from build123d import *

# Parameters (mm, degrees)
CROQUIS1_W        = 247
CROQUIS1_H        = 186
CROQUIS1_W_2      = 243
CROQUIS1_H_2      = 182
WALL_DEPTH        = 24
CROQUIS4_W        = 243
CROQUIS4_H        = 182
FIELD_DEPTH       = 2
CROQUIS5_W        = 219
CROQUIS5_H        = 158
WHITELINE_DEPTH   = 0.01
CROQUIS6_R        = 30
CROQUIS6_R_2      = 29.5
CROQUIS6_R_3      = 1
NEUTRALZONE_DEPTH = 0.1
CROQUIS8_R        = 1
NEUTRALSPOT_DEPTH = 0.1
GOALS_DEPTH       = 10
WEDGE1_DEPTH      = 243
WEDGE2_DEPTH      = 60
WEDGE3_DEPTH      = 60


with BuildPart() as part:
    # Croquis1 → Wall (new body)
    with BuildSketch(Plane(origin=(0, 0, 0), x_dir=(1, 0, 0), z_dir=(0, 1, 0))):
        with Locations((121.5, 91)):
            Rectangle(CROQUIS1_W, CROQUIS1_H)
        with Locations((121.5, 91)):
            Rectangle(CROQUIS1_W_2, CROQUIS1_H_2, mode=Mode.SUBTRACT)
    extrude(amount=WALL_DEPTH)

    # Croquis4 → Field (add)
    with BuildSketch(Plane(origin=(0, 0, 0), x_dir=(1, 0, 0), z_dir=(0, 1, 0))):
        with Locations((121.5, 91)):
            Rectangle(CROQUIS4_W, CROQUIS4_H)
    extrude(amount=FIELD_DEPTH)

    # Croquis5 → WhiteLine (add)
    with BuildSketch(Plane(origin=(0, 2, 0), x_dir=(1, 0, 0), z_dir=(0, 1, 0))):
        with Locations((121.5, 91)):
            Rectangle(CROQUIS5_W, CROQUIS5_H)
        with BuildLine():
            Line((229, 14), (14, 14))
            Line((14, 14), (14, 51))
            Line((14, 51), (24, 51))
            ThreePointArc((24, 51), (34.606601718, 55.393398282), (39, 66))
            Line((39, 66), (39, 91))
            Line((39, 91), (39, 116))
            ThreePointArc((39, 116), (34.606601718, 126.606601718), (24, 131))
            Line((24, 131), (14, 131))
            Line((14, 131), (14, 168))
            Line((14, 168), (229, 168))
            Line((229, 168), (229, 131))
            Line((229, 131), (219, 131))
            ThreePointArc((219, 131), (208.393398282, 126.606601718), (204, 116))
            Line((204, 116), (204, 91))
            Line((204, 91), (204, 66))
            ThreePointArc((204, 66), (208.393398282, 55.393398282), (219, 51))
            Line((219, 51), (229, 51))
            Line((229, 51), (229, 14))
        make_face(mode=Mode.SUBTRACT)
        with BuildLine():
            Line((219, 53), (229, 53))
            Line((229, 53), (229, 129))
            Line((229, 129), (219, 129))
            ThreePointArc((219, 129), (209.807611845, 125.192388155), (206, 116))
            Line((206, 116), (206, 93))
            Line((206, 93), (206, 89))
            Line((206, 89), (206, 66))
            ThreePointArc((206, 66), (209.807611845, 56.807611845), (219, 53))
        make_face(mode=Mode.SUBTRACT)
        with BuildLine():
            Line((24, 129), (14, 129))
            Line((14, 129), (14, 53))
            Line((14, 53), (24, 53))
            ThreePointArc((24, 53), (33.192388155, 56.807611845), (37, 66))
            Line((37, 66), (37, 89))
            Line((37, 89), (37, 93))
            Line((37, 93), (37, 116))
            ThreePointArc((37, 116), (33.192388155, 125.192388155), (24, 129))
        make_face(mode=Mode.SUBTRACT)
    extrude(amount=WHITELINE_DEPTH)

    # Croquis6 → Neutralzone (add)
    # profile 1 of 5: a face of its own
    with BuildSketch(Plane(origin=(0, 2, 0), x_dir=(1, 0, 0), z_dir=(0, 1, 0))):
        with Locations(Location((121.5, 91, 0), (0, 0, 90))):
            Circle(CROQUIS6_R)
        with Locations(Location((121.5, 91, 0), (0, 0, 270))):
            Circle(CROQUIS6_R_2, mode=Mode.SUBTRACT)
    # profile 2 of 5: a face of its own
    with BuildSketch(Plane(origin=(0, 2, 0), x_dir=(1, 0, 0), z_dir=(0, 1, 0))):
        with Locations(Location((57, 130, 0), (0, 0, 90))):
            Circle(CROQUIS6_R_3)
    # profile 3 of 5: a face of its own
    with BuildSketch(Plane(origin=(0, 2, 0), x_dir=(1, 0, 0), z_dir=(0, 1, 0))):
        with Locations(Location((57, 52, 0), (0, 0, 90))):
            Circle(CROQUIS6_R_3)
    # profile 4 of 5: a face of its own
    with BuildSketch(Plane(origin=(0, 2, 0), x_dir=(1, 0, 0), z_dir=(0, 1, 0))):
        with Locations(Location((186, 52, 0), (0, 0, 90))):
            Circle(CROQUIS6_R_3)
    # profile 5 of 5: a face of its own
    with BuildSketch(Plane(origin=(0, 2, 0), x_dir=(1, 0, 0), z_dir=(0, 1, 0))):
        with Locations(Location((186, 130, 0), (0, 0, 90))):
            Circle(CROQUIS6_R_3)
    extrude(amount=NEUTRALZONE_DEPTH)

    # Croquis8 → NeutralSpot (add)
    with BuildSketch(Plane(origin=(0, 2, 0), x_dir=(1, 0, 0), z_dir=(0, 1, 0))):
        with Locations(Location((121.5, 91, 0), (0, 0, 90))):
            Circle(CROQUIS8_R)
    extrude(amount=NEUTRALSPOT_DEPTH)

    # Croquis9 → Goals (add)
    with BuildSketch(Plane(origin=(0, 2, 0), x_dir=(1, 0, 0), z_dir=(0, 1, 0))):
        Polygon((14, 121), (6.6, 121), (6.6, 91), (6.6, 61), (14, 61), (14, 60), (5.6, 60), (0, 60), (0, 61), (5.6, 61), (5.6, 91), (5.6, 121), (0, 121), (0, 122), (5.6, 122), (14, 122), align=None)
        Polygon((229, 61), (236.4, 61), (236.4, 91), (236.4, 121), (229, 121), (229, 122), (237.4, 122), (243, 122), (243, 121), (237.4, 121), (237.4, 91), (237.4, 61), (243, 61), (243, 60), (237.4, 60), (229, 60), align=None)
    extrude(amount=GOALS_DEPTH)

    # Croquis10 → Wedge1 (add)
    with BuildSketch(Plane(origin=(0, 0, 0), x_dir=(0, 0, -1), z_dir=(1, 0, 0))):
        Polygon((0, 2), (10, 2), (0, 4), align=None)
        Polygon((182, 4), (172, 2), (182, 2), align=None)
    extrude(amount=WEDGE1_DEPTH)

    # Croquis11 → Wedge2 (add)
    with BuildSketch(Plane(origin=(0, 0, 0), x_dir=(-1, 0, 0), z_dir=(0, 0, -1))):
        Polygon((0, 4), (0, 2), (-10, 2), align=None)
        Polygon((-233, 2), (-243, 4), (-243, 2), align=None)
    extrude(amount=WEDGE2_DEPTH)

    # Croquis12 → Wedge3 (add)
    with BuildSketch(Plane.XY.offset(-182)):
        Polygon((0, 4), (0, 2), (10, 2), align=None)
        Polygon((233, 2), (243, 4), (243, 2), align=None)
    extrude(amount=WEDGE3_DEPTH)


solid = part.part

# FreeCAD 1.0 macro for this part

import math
import FreeCAD as App
import Part
import Sketcher

V = App.Vector
Q = App.Units.Quantity


def add_polygon(sketch, points):
    """Adds a closed chain of lines whose ends are joined by coincident constraints."""
    first, n = sketch.GeometryCount, len(points)
    for a, b in zip(points, points[1:] + points[:1]):
        sketch.addGeometry(Part.LineSegment(App.Vector(*a, 0), App.Vector(*b, 0)), False)
    for i in range(n):
        sketch.addConstraint(Sketcher.Constraint("Coincident", first + i, 2, first + (i + 1) % n, 1))

doc = App.newDocument("Part")
body = doc.addObject("PartDesign::Body", "Body")

sketch1 = body.newObject("Sketcher::SketchObject", "Sketch")
sketch1.AttachmentSupport = (doc.getObject("XZ_Plane"), [""])
sketch1.MapMode = "FlatFace"
add_polygon(sketch1, [(-2, -184), (-2, 2), (245, 2), (245, -184)])
add_polygon(sketch1, [(243, 0), (0, 0), (0, -182), (243, -182)])
sketch1.addConstraint([
    Sketcher.Constraint("Vertical", 0),
    Sketcher.Constraint("Horizontal", 1),
    Sketcher.Constraint("Vertical", 2),
    Sketcher.Constraint("Horizontal", 3),
    Sketcher.Constraint("Horizontal", 4),
    Sketcher.Constraint("Vertical", 5),
    Sketcher.Constraint("Horizontal", 6),
    Sketcher.Constraint("Vertical", 7),
    Sketcher.Constraint("Coincident", 4, 2, -1, 1),
    Sketcher.Constraint("DistanceX", 1, 1, 1, 2, Q("247 mm")),
    Sketcher.Constraint("DistanceX", 4, 2, 4, 1, Q("243 mm")),
    Sketcher.Constraint("DistanceY", 0, 1, 0, 2, Q("186 mm")),
    Sketcher.Constraint("DistanceY", 5, 2, 5, 1, Q("182 mm")),
    Sketcher.Constraint("DistanceX", 0, 2, -1, 1, Q("2 mm")),
    Sketcher.Constraint("DistanceY", -1, 1, 0, 2, Q("2 mm")),
])
pad1 = body.newObject("PartDesign::Pad", "Pad")
pad1.Profile = sketch1
pad1.Length = 24
pad1.Reversed = True

sketch2 = body.newObject("Sketcher::SketchObject", "Sketch001")
sketch2.AttachmentSupport = (doc.getObject("XZ_Plane"), [""])
sketch2.MapMode = "FlatFace"
add_polygon(sketch2, [(0, -182), (0, 0), (243, 0), (243, -182)])
sketch2.addConstraint([
    Sketcher.Constraint("Vertical", 0),
    Sketcher.Constraint("Horizontal", 1),
    Sketcher.Constraint("Vertical", 2),
    Sketcher.Constraint("Horizontal", 3),
    Sketcher.Constraint("Coincident", 0, 2, -1, 1),
    Sketcher.Constraint("DistanceX", 1, 1, 1, 2, Q("243 mm")),
    Sketcher.Constraint("DistanceY", 0, 1, 0, 2, Q("182 mm")),
])
pad2 = body.newObject("PartDesign::Pad", "Pad001")
pad2.Profile = sketch2
pad2.Length = 2
pad2.Reversed = True

sketch3 = body.newObject("Sketcher::SketchObject", "Sketch002")
sketch3.AttachmentSupport = (doc.getObject("XZ_Plane"), [""])
sketch3.MapMode = "FlatFace"
sketch3.AttachmentOffset = App.Placement(V(0, 0, -2), App.Rotation())
add_polygon(sketch3, [(12, -170), (12, -12), (231, -12), (231, -170)])
sketch3.addGeometry(Part.LineSegment(V(14, -129, 0), V(24, -129, 0)), False)
sketch3.addGeometry(Part.ArcOfCircle(Part.Circle(V(24, -116, 0), V(0, 0, 1), 13), math.radians(-90), math.radians(0)), False)
sketch3.addGeometry(Part.LineSegment(V(37, -116, 0), V(37, -66, 0)), False)
sketch3.addGeometry(Part.ArcOfCircle(Part.Circle(V(24, -66, 0), V(0, 0, 1), 13), math.radians(0), math.radians(90)), False)
sketch3.addGeometry(Part.LineSegment(V(24, -53, 0), V(14, -53, 0)), False)
sketch3.addGeometry(Part.LineSegment(V(14, -53, 0), V(14, -129, 0)), False)
sketch3.addGeometry(Part.LineSegment(V(229, -51, 0), V(229, -14, 0)), False)
sketch3.addGeometry(Part.LineSegment(V(229, -14, 0), V(14, -14, 0)), False)
sketch3.addGeometry(Part.LineSegment(V(14, -14, 0), V(14, -51, 0)), False)
sketch3.addGeometry(Part.LineSegment(V(14, -51, 0), V(24, -51, 0)), False)
sketch3.addGeometry(Part.ArcOfCircle(Part.Circle(V(24, -66, 0), V(0, 0, 1), 15), math.radians(0), math.radians(90)), False)
sketch3.addGeometry(Part.LineSegment(V(39, -66, 0), V(39, -116, 0)), False)
sketch3.addGeometry(Part.ArcOfCircle(Part.Circle(V(24, -116, 0), V(0, 0, 1), 15), math.radians(-90), math.radians(0)), False)
sketch3.addGeometry(Part.LineSegment(V(24, -131, 0), V(14, -131, 0)), False)
sketch3.addGeometry(Part.LineSegment(V(14, -131, 0), V(14, -168, 0)), False)
sketch3.addGeometry(Part.LineSegment(V(14, -168, 0), V(229, -168, 0)), False)
sketch3.addGeometry(Part.LineSegment(V(229, -168, 0), V(229, -131, 0)), False)
sketch3.addGeometry(Part.LineSegment(V(229, -131, 0), V(219, -131, 0)), False)
sketch3.addGeometry(Part.ArcOfCircle(Part.Circle(V(219, -116, 0), V(0, 0, 1), 15), math.radians(180), math.radians(270)), False)
sketch3.addGeometry(Part.LineSegment(V(204, -116, 0), V(204, -66, 0)), False)
sketch3.addGeometry(Part.ArcOfCircle(Part.Circle(V(219, -66, 0), V(0, 0, 1), 15), math.radians(90), math.radians(180)), False)
sketch3.addGeometry(Part.LineSegment(V(219, -51, 0), V(229, -51, 0)), False)
sketch3.addGeometry(Part.LineSegment(V(229, -53, 0), V(219, -53, 0)), False)
sketch3.addGeometry(Part.ArcOfCircle(Part.Circle(V(219, -66, 0), V(0, 0, 1), 13), math.radians(90), math.radians(180)), False)
sketch3.addGeometry(Part.LineSegment(V(206, -66, 0), V(206, -116, 0)), False)
sketch3.addGeometry(Part.ArcOfCircle(Part.Circle(V(219, -116, 0), V(0, 0, 1), 13), math.radians(-180), math.radians(-90)), False)
sketch3.addGeometry(Part.LineSegment(V(219, -129, 0), V(229, -129, 0)), False)
sketch3.addGeometry(Part.LineSegment(V(229, -129, 0), V(229, -53, 0)), False)
sketch3.addConstraint([
    Sketcher.Constraint("Tangent", 4, 2, 5, 1),
    Sketcher.Constraint("Tangent", 5, 2, 6, 1),
    Sketcher.Constraint("Tangent", 6, 2, 7, 1),
    Sketcher.Constraint("Tangent", 7, 2, 8, 1),
    Sketcher.Constraint("Coincident", 8, 2, 9, 1),
    Sketcher.Constraint("Coincident", 9, 2, 4, 1),
    Sketcher.Constraint("Coincident", 10, 2, 11, 1),
    Sketcher.Constraint("Coincident", 11, 2, 12, 1),
    Sketcher.Constraint("Coincident", 12, 2, 13, 1),
    Sketcher.Constraint("Tangent", 13, 2, 14, 2),
    Sketcher.Constraint("Tangent", 14, 1, 15, 1),
    Sketcher.Constraint("Tangent", 15, 2, 16, 2),
    Sketcher.Constraint("Tangent", 16, 1, 17, 1),
    Sketcher.Constraint("Coincident", 17, 2, 18, 1),
    Sketcher.Constraint("Coincident", 18, 2, 19, 1),
    Sketcher.Constraint("Coincident", 19, 2, 20, 1),
    Sketcher.Constraint("Coincident", 20, 2, 21, 1),
    Sketcher.Constraint("Tangent", 21, 2, 22, 2),
    Sketcher.Constraint("Tangent", 22, 1, 23, 1),
    Sketcher.Constraint("Tangent", 23, 2, 24, 2),
    Sketcher.Constraint("Tangent", 24, 1, 25, 1),
    Sketcher.Constraint("Coincident", 25, 2, 10, 1),
    Sketcher.Constraint("Tangent", 26, 2, 27, 1),
    Sketcher.Constraint("Tangent", 27, 2, 28, 1),
    Sketcher.Constraint("Tangent", 28, 2, 29, 1),
    Sketcher.Constraint("Tangent", 29, 2, 30, 1),
    Sketcher.Constraint("Coincident", 30, 2, 31, 1),
    Sketcher.Constraint("Coincident", 31, 2, 26, 1),
    Sketcher.Constraint("Vertical", 0),
    Sketcher.Constraint("Horizontal", 1),
    Sketcher.Constraint("Vertical", 2),
    Sketcher.Constraint("Horizontal", 3),
    Sketcher.Constraint("Horizontal", 4),
    Sketcher.Constraint("Vertical", 6),
    Sketcher.Constraint("Horizontal", 8),
    Sketcher.Constraint("Vertical", 9),
    Sketcher.Constraint("Vertical", 10),
    Sketcher.Constraint("Horizontal", 11),
    Sketcher.Constraint("Vertical", 12),
    Sketcher.Constraint("Horizontal", 13),
    Sketcher.Constraint("Vertical", 15),
    Sketcher.Constraint("Horizontal", 17),
    Sketcher.Constraint("Vertical", 18),
    Sketcher.Constraint("Horizontal", 19),
    Sketcher.Constraint("Vertical", 20),
    Sketcher.Constraint("Horizontal", 21),
    Sketcher.Constraint("Vertical", 23),
    Sketcher.Constraint("Horizontal", 25),
    Sketcher.Constraint("Horizontal", 26),
    Sketcher.Constraint("Vertical", 28),
    Sketcher.Constraint("Horizontal", 30),
    Sketcher.Constraint("Vertical", 31),
    Sketcher.Constraint("Coincident", 14, 3, 7, 3),
    Sketcher.Constraint("Coincident", 16, 3, 5, 3),
    Sketcher.Constraint("Coincident", 27, 3, 24, 3),
    Sketcher.Constraint("Coincident", 29, 3, 22, 3),
    Sketcher.Constraint("Equal", 5, 7),
    Sketcher.Constraint("Equal", 16, 22),
    Sketcher.Constraint("Equal", 22, 24),
    Sketcher.Constraint("Equal", 7, 27),
    Sketcher.Constraint("Horizontal", 16, 3, 22, 3),
    Sketcher.Constraint("Horizontal", 14, 3, 24, 3),
    Sketcher.Constraint("Vertical", 9, 2, 11, 2),
    Sketcher.Constraint("Vertical", 12, 2, 17, 2),
    Sketcher.Constraint("Vertical", 10, 2, 19, 2),
    Sketcher.Constraint("Vertical", 25, 2, 30, 2),
    Sketcher.Constraint("Equal", 17, 21),
    Sketcher.Constraint("Equal", 12, 18),
    Sketcher.Constraint("Radius", 5, Q("13 mm")),
    Sketcher.Constraint("Radius", 14, Q("15 mm")),
    Sketcher.Constraint("DistanceX", 1, 1, 1, 2, Q("219 mm")),
    Sketcher.Constraint("DistanceX", 4, 1, 4, 2, Q("10 mm")),
    Sketcher.Constraint("DistanceX", 11, 2, 11, 1, Q("215 mm")),
    Sketcher.Constraint("DistanceY", 0, 1, 0, 2, Q("158 mm")),
    Sketcher.Constraint("DistanceY", 6, 1, 6, 2, Q("50 mm")),
    Sketcher.Constraint("DistanceY", 10, 1, 10, 2, Q("37 mm")),
    Sketcher.Constraint("DistanceX", -1, 1, 5, 3, Q("24 mm")),
    Sketcher.Constraint("DistanceY", 5, 3, -1, 1, Q("116 mm")),
    Sketcher.Constraint("DistanceX", -1, 1, 0, 2, Q("12 mm")),
    Sketcher.Constraint("DistanceY", 0, 2, -1, 1, Q("12 mm")),
])
pad3 = body.newObject("PartDesign::Pad", "Pad002")
pad3.Profile = sketch3
pad3.Length = 0.01
pad3.Reversed = True

sketch4 = body.newObject("Sketcher::SketchObject", "Sketch003")
sketch4.AttachmentSupport = (doc.getObject("XZ_Plane"), [""])
sketch4.MapMode = "FlatFace"
sketch4.AttachmentOffset = App.Placement(V(0, 0, -2), App.Rotation())
sketch4.addGeometry([
    Part.Circle(V(121.5, -91, 0), V(0, 0, 1), 30),
    Part.Circle(V(121.5, -91, 0), V(0, 0, 1), 29.5),
    Part.Circle(V(57, -130, 0), V(0, 0, 1), 1),
    Part.Circle(V(57, -52, 0), V(0, 0, 1), 1),
    Part.Circle(V(186, -52, 0), V(0, 0, 1), 1),
    Part.Circle(V(186, -130, 0), V(0, 0, 1), 1),
], False)
sketch4.addConstraint([
    Sketcher.Constraint("Coincident", 1, 3, 0, 3),
    Sketcher.Constraint("Equal", 2, 3),
    Sketcher.Constraint("Equal", 3, 4),
    Sketcher.Constraint("Equal", 4, 5),
    Sketcher.Constraint("Horizontal", 3, 3, 4, 3),
    Sketcher.Constraint("Horizontal", 2, 3, 5, 3),
    Sketcher.Constraint("Vertical", 2, 3, 3, 3),
    Sketcher.Constraint("Vertical", 4, 3, 5, 3),
    Sketcher.Constraint("Diameter", 0, Q("60 mm")),
    Sketcher.Constraint("Diameter", 1, Q("59 mm")),
    Sketcher.Constraint("Diameter", 2, Q("2 mm")),
    Sketcher.Constraint("DistanceY", 0, 3, -1, 1, Q("91 mm")),
    Sketcher.Constraint("DistanceX", -1, 1, 2, 3, Q("57 mm")),
    Sketcher.Constraint("DistanceY", 2, 3, -1, 1, Q("130 mm")),
    Sketcher.Constraint("DistanceY", 3, 3, -1, 1, Q("52 mm")),
    Sketcher.Constraint("DistanceX", -1, 1, 4, 3, Q("186 mm")),
    Sketcher.Constraint("DistanceX", -1, 1, 0, 3, Q("121.5 mm")),
])
pad4 = body.newObject("PartDesign::Pad", "Pad003")
pad4.Profile = sketch4
pad4.Length = 0.1
pad4.Reversed = True

sketch5 = body.newObject("Sketcher::SketchObject", "Sketch004")
sketch5.AttachmentSupport = (doc.getObject("XZ_Plane"), [""])
sketch5.MapMode = "FlatFace"
sketch5.AttachmentOffset = App.Placement(V(0, 0, -2), App.Rotation())
sketch5.addGeometry(Part.Circle(V(121.5, -91, 0), V(0, 0, 1), 1), False)
sketch5.addConstraint([
    Sketcher.Constraint("Diameter", 0, Q("2 mm")),
    Sketcher.Constraint("DistanceY", 0, 3, -1, 1, Q("91 mm")),
    Sketcher.Constraint("DistanceX", -1, 1, 0, 3, Q("121.5 mm")),
])
pad5 = body.newObject("PartDesign::Pad", "Pad004")
pad5.Profile = sketch5
pad5.Length = 0.1
pad5.Reversed = True

sketch6 = body.newObject("Sketcher::SketchObject", "Sketch005")
sketch6.AttachmentSupport = (doc.getObject("XZ_Plane"), [""])
sketch6.MapMode = "FlatFace"
sketch6.AttachmentOffset = App.Placement(V(0, 0, -2), App.Rotation())
add_polygon(sketch6, [(6.6, -121), (14, -121), (14, -122), (0, -122), (0, -121), (5.6, -121), (5.6, -61), (0, -61), (0, -60), (14, -60), (14, -61), (6.6, -61)])
add_polygon(sketch6, [(236.4, -61), (229, -61), (229, -60), (243, -60), (243, -61), (237.4, -61), (237.4, -121), (243, -121), (243, -122), (229, -122), (229, -121), (236.4, -121)])
sketch6.addConstraint([
    Sketcher.Constraint("Horizontal", 0),
    Sketcher.Constraint("Vertical", 1),
    Sketcher.Constraint("Horizontal", 2),
    Sketcher.Constraint("Vertical", 3),
    Sketcher.Constraint("Horizontal", 4),
    Sketcher.Constraint("Vertical", 5),
    Sketcher.Constraint("Horizontal", 6),
    Sketcher.Constraint("Vertical", 7),
    Sketcher.Constraint("Horizontal", 8),
    Sketcher.Constraint("Vertical", 9),
    Sketcher.Constraint("Horizontal", 10),
    Sketcher.Constraint("Vertical", 11),
    Sketcher.Constraint("Horizontal", 12),
    Sketcher.Constraint("Vertical", 13),
    Sketcher.Constraint("Horizontal", 14),
    Sketcher.Constraint("Vertical", 15),
    Sketcher.Constraint("Horizontal", 16),
    Sketcher.Constraint("Vertical", 17),
    Sketcher.Constraint("Horizontal", 18),
    Sketcher.Constraint("Vertical", 19),
    Sketcher.Constraint("Horizontal", 20),
    Sketcher.Constraint("Vertical", 21),
    Sketcher.Constraint("Horizontal", 22),
    Sketcher.Constraint("Vertical", 23),
    Sketcher.Constraint("PointOnObject", 2, 2, -2),
    Sketcher.Constraint("PointOnObject", 6, 2, -2),
    Sketcher.Constraint("Horizontal", 0, 2, 3, 2),
    Sketcher.Constraint("Horizontal", 6, 2, 9, 2),
    Sketcher.Constraint("Horizontal", 10, 2, 12, 2),
    Sketcher.Constraint("Horizontal", 8, 2, 13, 2),
    Sketcher.Constraint("Horizontal", 12, 2, 15, 2),
    Sketcher.Constraint("Horizontal", 11, 2, 17, 2),
    Sketcher.Constraint("Horizontal", 2, 2, 19, 2),
    Sketcher.Constraint("Horizontal", 18, 2, 21, 2),
    Sketcher.Constraint("Vertical", 1, 2, 8, 2),
    Sketcher.Constraint("Vertical", 15, 2, 18, 2),
    Sketcher.Constraint("Vertical", 13, 2, 20, 2),
    Sketcher.Constraint("Equal", 10, 12),
    Sketcher.Constraint("Equal", 8, 14),
    Sketcher.Constraint("Equal", 6, 16),
    Sketcher.Constraint("Equal", 3, 7),
    Sketcher.Constraint("DistanceX", 2, 2, 2, 1, Q("14 mm")),
    Sketcher.Constraint("DistanceY", 1, 2, 1, 1, Q("1 mm")),
    Sketcher.Constraint("DistanceY", 5, 1, 5, 2, Q("60 mm")),
    Sketcher.Constraint("DistanceX", 0, 1, 0, 2, Q("7.4 mm")),
    Sketcher.Constraint("DistanceX", 4, 1, 4, 2, Q("5.6 mm")),
    Sketcher.Constraint("DistanceY", 0, 2, -1, 1, Q("121 mm")),
    Sketcher.Constraint("DistanceX", -1, 1, 12, 2, Q("229 mm")),
])
pad6 = body.newObject("PartDesign::Pad", "Pad005")
pad6.Profile = sketch6
pad6.Length = 10
pad6.Reversed = True

sketch7 = body.newObject("Sketcher::SketchObject", "Sketch006")
sketch7.AttachmentSupport = (doc.getObject("YZ_Plane"), [""])
sketch7.MapMode = "FlatFace"
add_polygon(sketch7, [(2, 0), (2, -10), (4, 0)])
add_polygon(sketch7, [(4, -182), (2, -172), (2, -182)])
sketch7.addConstraint([
    Sketcher.Constraint("Vertical", 0),
    Sketcher.Constraint("Horizontal", 2),
    Sketcher.Constraint("Vertical", 4),
    Sketcher.Constraint("Horizontal", 5),
    Sketcher.Constraint("PointOnObject", 1, 2, -1),
    Sketcher.Constraint("Vertical", 2, 2, 3, 2),
    Sketcher.Constraint("Vertical", 1, 2, 5, 2),
    Sketcher.Constraint("Equal", 0, 4),
    Sketcher.Constraint("DistanceX", 2, 2, 2, 1, Q("2 mm")),
    Sketcher.Constraint("DistanceY", 0, 2, 0, 1, Q("10 mm")),
    Sketcher.Constraint("DistanceX", -1, 1, 0, 2, Q("2 mm")),
    Sketcher.Constraint("DistanceY", 3, 2, -1, 1, Q("172 mm")),
])
pad7 = body.newObject("PartDesign::Pad", "Pad006")
pad7.Profile = sketch7
pad7.Length = 243

sketch8 = body.newObject("Sketcher::SketchObject", "Sketch007")
sketch8.AttachmentSupport = (doc.getObject("XY_Plane"), [""])
sketch8.MapMode = "FlatFace"
add_polygon(sketch8, [(0, 2), (0, 4), (10, 2)])
add_polygon(sketch8, [(233, 2), (243, 4), (243, 2)])
sketch8.addConstraint([
    Sketcher.Constraint("Vertical", 0),
    Sketcher.Constraint("Horizontal", 2),
    Sketcher.Constraint("Vertical", 4),
    Sketcher.Constraint("Horizontal", 5),
    Sketcher.Constraint("PointOnObject", 0, 2, -2),
    Sketcher.Constraint("Horizontal", 0, 2, 3, 2),
    Sketcher.Constraint("Horizontal", 2, 2, 4, 2),
    Sketcher.Constraint("Equal", 2, 5),
    Sketcher.Constraint("DistanceX", 2, 2, 2, 1, Q("10 mm")),
    Sketcher.Constraint("DistanceY", 0, 1, 0, 2, Q("2 mm")),
    Sketcher.Constraint("DistanceY", -1, 1, 0, 2, Q("4 mm")),
    Sketcher.Constraint("DistanceX", -1, 1, 3, 2, Q("243 mm")),
])
pad8 = body.newObject("PartDesign::Pad", "Pad007")
pad8.Profile = sketch8
pad8.Length = 60
pad8.Reversed = True

sketch9 = body.newObject("Sketcher::SketchObject", "Sketch008")
sketch9.AttachmentSupport = (doc.getObject("XY_Plane"), [""])
sketch9.MapMode = "FlatFace"
sketch9.AttachmentOffset = App.Placement(V(0, 0, -182), App.Rotation())
add_polygon(sketch9, [(0, 4), (0, 2), (10, 2)])
add_polygon(sketch9, [(243, 4), (233, 2), (243, 2)])
sketch9.addConstraint([
    Sketcher.Constraint("Vertical", 0),
    Sketcher.Constraint("Horizontal", 1),
    Sketcher.Constraint("Horizontal", 4),
    Sketcher.Constraint("Vertical", 5),
    Sketcher.Constraint("PointOnObject", 0, 2, -2),
    Sketcher.Constraint("Horizontal", 1, 2, 3, 2),
    Sketcher.Constraint("Horizontal", 2, 2, 5, 2),
    Sketcher.Constraint("Equal", 1, 4),
    Sketcher.Constraint("DistanceX", 1, 1, 1, 2, Q("10 mm")),
    Sketcher.Constraint("DistanceY", 0, 2, 0, 1, Q("2 mm")),
    Sketcher.Constraint("DistanceY", -1, 1, 0, 2, Q("2 mm")),
    Sketcher.Constraint("DistanceX", -1, 1, 3, 2, Q("233 mm")),
])
pad9 = body.newObject("PartDesign::Pad", "Pad008")
pad9.Profile = sketch9
pad9.Length = 60

doc.recompute()
